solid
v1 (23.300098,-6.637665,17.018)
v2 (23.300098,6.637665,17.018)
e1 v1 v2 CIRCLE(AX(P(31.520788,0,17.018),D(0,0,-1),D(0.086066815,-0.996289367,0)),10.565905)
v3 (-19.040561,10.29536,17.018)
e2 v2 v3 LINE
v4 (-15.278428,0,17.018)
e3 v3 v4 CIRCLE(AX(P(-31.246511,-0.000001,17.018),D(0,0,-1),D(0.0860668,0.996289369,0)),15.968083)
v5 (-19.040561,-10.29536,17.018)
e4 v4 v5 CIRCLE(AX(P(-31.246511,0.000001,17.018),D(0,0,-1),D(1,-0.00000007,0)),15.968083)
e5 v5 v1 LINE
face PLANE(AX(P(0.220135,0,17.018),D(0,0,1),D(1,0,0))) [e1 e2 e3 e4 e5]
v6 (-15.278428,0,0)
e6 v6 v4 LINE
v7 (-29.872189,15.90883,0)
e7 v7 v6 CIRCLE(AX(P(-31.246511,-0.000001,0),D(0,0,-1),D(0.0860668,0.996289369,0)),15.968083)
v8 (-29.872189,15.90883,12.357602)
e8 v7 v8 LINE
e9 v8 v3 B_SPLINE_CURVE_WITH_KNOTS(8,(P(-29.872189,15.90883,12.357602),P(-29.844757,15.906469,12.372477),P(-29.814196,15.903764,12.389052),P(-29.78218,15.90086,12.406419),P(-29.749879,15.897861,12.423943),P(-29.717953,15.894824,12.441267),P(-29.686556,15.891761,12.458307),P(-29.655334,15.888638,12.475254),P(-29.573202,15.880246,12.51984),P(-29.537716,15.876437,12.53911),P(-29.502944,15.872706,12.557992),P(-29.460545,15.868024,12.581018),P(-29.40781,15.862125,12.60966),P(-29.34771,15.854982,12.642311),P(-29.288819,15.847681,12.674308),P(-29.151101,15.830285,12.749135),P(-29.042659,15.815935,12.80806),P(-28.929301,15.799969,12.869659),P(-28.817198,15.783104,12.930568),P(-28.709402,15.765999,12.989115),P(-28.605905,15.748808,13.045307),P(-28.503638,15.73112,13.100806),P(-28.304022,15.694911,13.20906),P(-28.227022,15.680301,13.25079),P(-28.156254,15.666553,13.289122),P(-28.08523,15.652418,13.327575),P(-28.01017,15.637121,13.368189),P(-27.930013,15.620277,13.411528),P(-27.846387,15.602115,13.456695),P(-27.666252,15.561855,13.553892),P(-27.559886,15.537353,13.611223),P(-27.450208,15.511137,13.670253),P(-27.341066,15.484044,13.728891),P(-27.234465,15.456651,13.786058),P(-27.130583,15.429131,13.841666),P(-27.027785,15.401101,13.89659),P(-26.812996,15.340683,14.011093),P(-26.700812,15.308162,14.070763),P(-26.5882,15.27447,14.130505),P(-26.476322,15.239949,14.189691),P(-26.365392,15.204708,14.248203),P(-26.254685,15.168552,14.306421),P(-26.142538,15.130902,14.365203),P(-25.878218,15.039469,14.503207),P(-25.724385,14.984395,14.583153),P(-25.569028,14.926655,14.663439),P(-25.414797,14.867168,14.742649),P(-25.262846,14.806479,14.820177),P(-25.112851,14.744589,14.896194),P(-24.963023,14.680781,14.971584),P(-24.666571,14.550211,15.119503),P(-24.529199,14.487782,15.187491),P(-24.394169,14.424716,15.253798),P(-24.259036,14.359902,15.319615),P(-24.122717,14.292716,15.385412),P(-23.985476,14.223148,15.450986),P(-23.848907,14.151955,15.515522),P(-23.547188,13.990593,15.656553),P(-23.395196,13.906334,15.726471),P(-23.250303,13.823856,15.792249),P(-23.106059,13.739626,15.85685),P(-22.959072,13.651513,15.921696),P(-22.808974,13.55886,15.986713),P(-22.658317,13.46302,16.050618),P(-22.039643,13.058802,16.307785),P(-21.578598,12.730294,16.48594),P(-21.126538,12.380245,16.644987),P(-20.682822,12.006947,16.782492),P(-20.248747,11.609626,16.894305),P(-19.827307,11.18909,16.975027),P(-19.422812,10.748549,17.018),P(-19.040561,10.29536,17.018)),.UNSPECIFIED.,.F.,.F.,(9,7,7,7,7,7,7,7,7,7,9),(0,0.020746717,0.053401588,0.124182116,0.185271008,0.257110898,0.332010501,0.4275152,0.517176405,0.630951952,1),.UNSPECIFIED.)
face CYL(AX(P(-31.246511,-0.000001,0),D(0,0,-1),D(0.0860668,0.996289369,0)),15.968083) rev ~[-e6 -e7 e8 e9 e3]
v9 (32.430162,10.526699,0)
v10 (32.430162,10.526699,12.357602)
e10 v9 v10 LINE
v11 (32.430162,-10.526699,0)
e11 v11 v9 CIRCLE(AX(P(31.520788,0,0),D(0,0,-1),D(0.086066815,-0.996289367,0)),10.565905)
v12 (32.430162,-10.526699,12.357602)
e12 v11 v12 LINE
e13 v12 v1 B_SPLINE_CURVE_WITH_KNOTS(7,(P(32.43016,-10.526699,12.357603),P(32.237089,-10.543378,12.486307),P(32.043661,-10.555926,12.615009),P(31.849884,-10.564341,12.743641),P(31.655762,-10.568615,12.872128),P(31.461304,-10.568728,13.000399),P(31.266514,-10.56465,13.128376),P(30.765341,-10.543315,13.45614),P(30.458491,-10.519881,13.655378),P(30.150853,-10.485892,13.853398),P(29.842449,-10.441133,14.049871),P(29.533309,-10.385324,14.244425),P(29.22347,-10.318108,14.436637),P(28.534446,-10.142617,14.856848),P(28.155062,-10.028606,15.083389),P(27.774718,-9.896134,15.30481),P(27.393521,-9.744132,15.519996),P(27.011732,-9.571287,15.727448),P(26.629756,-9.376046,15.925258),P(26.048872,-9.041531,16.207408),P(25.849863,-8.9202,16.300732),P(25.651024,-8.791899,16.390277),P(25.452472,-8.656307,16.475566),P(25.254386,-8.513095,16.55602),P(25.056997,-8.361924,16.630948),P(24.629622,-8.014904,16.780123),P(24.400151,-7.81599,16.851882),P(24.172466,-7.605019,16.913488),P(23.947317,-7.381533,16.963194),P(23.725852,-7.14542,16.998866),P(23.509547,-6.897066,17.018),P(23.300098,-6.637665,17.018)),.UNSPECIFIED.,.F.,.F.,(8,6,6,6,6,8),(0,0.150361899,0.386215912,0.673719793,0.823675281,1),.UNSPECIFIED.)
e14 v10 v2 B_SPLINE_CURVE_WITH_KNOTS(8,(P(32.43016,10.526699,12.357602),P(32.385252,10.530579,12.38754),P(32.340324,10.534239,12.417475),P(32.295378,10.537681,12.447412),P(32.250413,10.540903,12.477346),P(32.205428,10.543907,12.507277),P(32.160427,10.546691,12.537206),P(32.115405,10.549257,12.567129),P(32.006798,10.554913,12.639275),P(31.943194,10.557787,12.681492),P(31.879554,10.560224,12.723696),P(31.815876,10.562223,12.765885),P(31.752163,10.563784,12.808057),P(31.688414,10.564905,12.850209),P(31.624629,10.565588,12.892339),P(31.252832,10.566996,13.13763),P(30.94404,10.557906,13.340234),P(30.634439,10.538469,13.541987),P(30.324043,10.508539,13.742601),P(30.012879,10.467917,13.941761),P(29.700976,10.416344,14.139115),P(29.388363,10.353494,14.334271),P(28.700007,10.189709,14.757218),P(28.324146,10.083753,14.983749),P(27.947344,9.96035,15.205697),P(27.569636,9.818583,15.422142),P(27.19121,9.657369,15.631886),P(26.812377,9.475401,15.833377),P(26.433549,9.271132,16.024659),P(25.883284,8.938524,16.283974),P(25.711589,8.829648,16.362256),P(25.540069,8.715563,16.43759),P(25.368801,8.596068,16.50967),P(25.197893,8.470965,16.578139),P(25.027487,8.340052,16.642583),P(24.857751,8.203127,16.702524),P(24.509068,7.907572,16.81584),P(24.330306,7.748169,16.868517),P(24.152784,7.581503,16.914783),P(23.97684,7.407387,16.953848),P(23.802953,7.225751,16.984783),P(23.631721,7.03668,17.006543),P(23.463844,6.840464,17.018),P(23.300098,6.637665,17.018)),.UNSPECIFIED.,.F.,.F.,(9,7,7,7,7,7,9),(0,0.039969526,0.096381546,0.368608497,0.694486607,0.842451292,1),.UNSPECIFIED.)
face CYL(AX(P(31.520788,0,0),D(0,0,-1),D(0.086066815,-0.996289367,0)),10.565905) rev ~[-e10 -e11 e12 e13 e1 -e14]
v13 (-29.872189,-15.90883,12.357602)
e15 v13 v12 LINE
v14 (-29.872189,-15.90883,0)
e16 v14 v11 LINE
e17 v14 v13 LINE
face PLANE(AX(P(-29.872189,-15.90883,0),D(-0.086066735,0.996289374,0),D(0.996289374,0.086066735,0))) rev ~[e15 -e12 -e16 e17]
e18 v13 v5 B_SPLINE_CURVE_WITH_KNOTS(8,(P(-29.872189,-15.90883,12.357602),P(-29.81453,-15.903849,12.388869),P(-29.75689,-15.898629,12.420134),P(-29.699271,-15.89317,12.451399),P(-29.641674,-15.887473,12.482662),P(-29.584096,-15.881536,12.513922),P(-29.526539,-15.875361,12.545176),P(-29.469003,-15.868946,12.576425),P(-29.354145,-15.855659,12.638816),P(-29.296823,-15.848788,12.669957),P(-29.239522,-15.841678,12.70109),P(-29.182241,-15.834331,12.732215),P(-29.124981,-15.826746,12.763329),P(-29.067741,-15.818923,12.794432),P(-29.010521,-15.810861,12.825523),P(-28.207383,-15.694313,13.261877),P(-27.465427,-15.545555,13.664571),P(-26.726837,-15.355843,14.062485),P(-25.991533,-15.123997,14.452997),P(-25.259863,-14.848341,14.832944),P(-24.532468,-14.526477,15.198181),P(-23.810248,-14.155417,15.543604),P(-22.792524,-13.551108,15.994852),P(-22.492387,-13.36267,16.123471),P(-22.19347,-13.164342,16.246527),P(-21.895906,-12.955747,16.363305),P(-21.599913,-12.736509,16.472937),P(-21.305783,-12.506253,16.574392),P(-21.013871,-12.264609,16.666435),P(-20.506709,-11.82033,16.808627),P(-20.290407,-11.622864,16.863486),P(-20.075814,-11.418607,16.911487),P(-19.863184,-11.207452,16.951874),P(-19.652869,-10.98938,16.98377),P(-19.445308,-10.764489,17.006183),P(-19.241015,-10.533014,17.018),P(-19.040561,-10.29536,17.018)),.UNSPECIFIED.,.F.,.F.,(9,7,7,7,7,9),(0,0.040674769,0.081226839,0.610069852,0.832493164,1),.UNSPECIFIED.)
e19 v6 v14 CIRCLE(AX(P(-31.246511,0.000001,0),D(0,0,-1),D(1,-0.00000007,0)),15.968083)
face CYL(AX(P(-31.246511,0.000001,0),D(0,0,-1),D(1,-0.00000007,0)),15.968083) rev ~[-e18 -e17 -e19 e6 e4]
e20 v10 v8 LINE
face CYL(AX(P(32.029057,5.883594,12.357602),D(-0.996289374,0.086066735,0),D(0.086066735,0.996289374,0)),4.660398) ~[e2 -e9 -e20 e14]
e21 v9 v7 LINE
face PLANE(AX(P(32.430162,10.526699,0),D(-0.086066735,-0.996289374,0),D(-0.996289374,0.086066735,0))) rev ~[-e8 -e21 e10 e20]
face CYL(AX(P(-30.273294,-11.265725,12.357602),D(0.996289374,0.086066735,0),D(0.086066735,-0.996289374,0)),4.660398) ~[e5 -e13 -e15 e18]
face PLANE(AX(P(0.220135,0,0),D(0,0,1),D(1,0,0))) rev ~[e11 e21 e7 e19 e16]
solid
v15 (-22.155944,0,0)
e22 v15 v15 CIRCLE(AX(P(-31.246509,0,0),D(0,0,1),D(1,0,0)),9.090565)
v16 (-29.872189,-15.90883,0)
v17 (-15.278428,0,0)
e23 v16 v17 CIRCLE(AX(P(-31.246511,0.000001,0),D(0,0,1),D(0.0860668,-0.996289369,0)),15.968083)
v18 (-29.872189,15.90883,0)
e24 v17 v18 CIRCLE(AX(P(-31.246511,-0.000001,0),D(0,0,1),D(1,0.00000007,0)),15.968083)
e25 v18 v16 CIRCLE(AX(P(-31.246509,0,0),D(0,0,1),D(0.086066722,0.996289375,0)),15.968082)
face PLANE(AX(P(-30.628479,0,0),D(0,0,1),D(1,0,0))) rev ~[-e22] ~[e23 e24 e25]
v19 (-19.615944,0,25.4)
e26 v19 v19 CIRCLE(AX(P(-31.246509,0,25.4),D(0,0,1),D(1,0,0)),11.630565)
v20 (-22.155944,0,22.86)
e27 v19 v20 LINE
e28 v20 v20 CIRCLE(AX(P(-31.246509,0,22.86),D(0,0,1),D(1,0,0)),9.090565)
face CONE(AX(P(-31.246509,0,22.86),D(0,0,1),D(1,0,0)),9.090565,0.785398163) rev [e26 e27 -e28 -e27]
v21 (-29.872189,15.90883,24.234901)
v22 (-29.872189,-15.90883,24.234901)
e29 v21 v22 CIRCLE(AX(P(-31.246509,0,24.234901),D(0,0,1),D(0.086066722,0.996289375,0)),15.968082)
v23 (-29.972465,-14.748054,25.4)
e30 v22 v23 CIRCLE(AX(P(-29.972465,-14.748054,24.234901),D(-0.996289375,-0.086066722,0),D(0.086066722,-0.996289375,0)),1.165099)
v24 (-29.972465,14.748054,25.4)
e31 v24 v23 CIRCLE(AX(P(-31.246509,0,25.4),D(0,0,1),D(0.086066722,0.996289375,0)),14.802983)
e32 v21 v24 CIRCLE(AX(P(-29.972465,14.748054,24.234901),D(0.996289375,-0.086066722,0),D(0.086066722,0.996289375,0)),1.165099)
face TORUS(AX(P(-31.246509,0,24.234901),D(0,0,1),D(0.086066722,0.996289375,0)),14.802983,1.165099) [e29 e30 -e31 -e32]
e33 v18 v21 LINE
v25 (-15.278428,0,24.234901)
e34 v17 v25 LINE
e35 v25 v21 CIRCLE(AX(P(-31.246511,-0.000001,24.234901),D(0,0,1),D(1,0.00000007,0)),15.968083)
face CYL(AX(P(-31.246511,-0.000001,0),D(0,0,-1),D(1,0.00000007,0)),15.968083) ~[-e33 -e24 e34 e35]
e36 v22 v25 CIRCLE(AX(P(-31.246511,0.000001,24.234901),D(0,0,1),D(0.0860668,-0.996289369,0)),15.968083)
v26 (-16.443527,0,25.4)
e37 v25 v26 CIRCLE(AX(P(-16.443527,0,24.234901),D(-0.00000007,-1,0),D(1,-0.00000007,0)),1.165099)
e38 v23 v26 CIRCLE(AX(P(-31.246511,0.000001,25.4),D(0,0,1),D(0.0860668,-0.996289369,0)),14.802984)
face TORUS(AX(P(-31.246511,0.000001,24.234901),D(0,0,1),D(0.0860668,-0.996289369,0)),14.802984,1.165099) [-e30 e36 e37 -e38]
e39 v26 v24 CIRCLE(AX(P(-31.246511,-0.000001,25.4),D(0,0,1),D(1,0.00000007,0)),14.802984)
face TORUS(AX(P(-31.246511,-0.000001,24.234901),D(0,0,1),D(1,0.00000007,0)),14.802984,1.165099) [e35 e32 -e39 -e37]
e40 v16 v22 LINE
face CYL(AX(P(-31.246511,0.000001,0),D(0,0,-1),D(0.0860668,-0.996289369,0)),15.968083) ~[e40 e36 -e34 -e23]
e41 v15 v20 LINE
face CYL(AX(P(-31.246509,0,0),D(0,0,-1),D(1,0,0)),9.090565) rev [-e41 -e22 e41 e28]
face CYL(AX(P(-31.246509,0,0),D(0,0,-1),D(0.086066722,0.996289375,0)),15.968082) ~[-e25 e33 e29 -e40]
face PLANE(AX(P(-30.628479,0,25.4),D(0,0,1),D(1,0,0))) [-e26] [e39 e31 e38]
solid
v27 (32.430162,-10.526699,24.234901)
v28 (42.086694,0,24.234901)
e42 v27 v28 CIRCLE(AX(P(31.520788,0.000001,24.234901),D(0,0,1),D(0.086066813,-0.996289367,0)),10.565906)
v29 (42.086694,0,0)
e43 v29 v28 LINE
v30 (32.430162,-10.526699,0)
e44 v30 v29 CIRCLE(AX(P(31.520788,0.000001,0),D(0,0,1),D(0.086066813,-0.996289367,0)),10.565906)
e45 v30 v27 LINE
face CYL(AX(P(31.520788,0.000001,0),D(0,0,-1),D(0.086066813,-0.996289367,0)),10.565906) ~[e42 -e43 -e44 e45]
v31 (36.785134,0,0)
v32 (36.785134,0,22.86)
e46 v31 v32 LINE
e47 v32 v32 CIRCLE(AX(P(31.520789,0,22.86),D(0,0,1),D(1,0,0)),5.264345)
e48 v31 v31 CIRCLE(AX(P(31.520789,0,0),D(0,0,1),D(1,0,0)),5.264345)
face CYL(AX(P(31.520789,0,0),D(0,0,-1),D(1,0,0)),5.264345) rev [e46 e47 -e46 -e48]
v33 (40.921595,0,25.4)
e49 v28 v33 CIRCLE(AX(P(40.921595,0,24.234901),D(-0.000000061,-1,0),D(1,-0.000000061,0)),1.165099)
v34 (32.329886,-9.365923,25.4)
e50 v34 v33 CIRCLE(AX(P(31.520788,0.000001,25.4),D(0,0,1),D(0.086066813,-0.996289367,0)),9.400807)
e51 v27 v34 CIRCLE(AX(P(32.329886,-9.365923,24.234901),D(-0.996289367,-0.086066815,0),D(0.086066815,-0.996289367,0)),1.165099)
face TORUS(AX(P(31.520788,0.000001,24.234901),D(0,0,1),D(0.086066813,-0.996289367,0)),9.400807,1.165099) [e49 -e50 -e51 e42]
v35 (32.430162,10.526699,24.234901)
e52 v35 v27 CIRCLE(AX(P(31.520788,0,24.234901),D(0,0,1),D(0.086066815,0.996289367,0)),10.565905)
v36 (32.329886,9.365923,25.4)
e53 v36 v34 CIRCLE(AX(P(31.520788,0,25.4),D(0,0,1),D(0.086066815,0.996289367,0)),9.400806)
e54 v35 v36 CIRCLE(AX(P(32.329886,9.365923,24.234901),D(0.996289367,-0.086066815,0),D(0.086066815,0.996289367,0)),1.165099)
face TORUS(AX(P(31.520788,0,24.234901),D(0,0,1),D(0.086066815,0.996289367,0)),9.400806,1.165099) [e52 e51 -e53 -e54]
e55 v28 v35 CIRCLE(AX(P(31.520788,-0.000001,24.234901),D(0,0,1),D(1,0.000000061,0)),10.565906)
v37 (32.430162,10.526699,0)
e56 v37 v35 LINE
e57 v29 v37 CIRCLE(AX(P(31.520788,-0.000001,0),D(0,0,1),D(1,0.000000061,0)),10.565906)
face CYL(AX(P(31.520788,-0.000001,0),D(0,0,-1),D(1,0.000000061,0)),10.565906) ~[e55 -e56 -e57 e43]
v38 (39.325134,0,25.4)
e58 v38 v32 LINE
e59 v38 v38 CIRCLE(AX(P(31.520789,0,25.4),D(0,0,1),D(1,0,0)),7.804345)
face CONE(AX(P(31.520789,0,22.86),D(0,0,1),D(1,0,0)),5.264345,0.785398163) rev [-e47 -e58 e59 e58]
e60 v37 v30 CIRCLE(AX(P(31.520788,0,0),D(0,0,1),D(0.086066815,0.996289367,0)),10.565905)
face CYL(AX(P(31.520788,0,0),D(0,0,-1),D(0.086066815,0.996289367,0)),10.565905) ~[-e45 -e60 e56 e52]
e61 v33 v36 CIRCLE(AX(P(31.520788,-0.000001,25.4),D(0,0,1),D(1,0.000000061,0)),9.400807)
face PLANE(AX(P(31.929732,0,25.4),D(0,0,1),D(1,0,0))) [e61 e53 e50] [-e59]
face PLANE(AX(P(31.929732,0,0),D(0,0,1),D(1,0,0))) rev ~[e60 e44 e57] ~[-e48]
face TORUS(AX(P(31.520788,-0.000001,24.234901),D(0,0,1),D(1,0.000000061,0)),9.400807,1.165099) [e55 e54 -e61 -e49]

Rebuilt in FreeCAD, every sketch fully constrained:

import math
import FreeCAD as App
import Part
import Sketcher

V = App.Vector
Q = App.Units.Quantity


def edges_at(feature, points):
    """Names of the edges that pass closest to the given points."""
    edges = feature.Shape.Edges
    near = lambda p: min(range(len(edges)), key=lambda i: edges[i].distToShape(Part.Vertex(*p))[0])
    return sorted({f"Edge{near(p) + 1}" for p in points})

doc = App.newDocument("Part")
body = doc.addObject("PartDesign::Body", "Body")
body.AllowCompound = True

# Sketch on XY plane
sketch1 = body.newObject("Sketcher::SketchObject", "Sketch")
sketch1.AttachmentSupport = (doc.getObject("XY_Plane"), [""])
sketch1.MapMode = "FlatFace"
sketch1.addGeometry(Part.ArcOfCircle(Part.Circle(V(-31, 0, 0), V(0, 0, 1), 16), math.radians(-85), math.radians(0)), False)
sketch1.addGeometry(Part.ArcOfCircle(Part.Circle(V(-31, 0, 0), V(0, 0, 1), 16), math.radians(0), math.radians(85)), False)
sketch1.addGeometry(Part.ArcOfCircle(Part.Circle(V(-31, 0, 0), V(0, 0, 1), 16), math.radians(85), math.radians(275)), False)
sketch1.addGeometry(Part.Circle(V(-31, 0, 0), V(0, 0, 1), 9), False)
sketch1.addGeometry(Part.ArcOfCircle(Part.Circle(V(32, 0, 0), V(0, 0, 1), 11), math.radians(0), math.radians(85)), False)
sketch1.addGeometry(Part.ArcOfCircle(Part.Circle(V(32, 0, 0), V(0, 0, 1), 11), math.radians(85), math.radians(275)), False)
sketch1.addGeometry(Part.ArcOfCircle(Part.Circle(V(32, 0, 0), V(0, 0, 1), 11), math.radians(-85), math.radians(0)), False)
sketch1.addGeometry(Part.Circle(V(32, 0, 0), V(0, 0, 1), 5), False)
sketch1.addConstraint(Sketcher.Constraint("Tangent", 0, 2, 1, 1))
sketch1.addConstraint(Sketcher.Constraint("Tangent", 1, 2, 2, 1))
sketch1.addConstraint(Sketcher.Constraint("Tangent", 2, 2, 0, 1))
sketch1.addConstraint(Sketcher.Constraint("Tangent", 4, 2, 5, 1))
sketch1.addConstraint(Sketcher.Constraint("Tangent", 5, 2, 6, 1))
sketch1.addConstraint(Sketcher.Constraint("Tangent", 6, 2, 4, 1))
sketch1.addConstraint(Sketcher.Constraint("Coincident", 3, 3, 0, 3))
sketch1.addConstraint(Sketcher.Constraint("Coincident", 7, 3, 4, 3))
sketch1.addConstraint(Sketcher.Constraint("Symmetric", 1, 2, 2, 2, -1))
sketch1.addConstraint(Sketcher.Constraint("Symmetric", 4, 2, 5, 2, -1))
sketch1.addConstraint(Sketcher.Constraint("PointOnObject", 0, 2, -1))
sketch1.addConstraint(Sketcher.Constraint("PointOnObject", 6, 2, -1))
sketch1.addConstraint(Sketcher.Constraint("Diameter", 3, Q("18.18113 mm")))
sketch1.addConstraint(Sketcher.Constraint("Diameter", 7, Q("10.52869 mm")))
sketch1.addConstraint(Sketcher.Constraint("Radius", 2, Q("15.968082 mm")))
sketch1.addConstraint(Sketcher.Constraint("Radius", 4, Q("10.565906 mm")))
sketch1.addConstraint(Sketcher.Constraint("DistanceY", -1, 1, 4, 2, Q("10.526699 mm")))
sketch1.addConstraint(Sketcher.Constraint("DistanceX", 1, 3, 4, 3, Q("62.767299 mm")))
sketch1.addConstraint(Sketcher.Constraint("DistanceX", 0, 3, -1, 1, Q("31.246511 mm")))
sketch1.addConstraint(Sketcher.Constraint("DistanceX", 1, 2, -1, 1, Q("29.872189 mm")))
pad1 = body.newObject("PartDesign::Pad", "Pad")
pad1.Profile = sketch1
pad1.Length = Q("1 in")
doc.recompute()

fillet = body.newObject("PartDesign::Fillet", "Fillet")
fillet.Base = (pad1, edges_at(pad1, [(-47.215, 0, 25.4), (20.955, 0, 25.4)]))
fillet.Radius = 1.165099
doc.recompute()

chamfer = body.newObject("PartDesign::Chamfer", "Chamfer")
chamfer.Base = (fillet, edges_at(fillet, [(-40.337, 0, 25.4), (26.256, 0, 25.4)]))
chamfer.Size = Q("0.1 in")
body2 = doc.addObject("PartDesign::Body", "Body001")

# Sketch on XY plane
sketch2 = body2.newObject("Sketcher::SketchObject", "Sketch001")
sketch2.AttachmentSupport = (doc.getObject("XY_Plane001"), [""])
sketch2.MapMode = "FlatFace"
sketch2.addGeometry(Part.ArcOfCircle(Part.Circle(V(-31, 0, 0), V(0, 0, 1), 16), math.radians(0), math.radians(85)), False)
sketch2.addGeometry(Part.ArcOfCircle(Part.Circle(V(-31, 0, 0), V(0, 0, 1), 16), math.radians(-85), math.radians(0)), False)
sketch2.addGeometry(Part.LineSegment(V(-30, -16, 0), V(32, -11, 0)), False)
sketch2.addGeometry(Part.ArcOfCircle(Part.Circle(V(32, 0, 0), V(0, 0, 1), 11), math.radians(85), math.radians(275)), False)
sketch2.addGeometry(Part.LineSegment(V(32, 11, 0), V(-30, 16, 0)), False)
sketch2.addConstraint(Sketcher.Constraint("Tangent", 0, 1, 1, 2))
sketch2.addConstraint(Sketcher.Constraint("Tangent", 1, 1, 2, 1))
sketch2.addConstraint(Sketcher.Constraint("Tangent", 2, 2, 3, 2))
sketch2.addConstraint(Sketcher.Constraint("Tangent", 3, 1, 4, 1))
sketch2.addConstraint(Sketcher.Constraint("Tangent", 4, 2, 0, 2))
sketch2.addConstraint(Sketcher.Constraint("Equal", 0, 1))
sketch2.addConstraint(Sketcher.Constraint("Symmetric", 2, 2, 3, 1, -1))
sketch2.addConstraint(Sketcher.Constraint("PointOnObject", 0, 1, -1))
sketch2.addConstraint(Sketcher.Constraint("Radius", 0, Q("15.968083 mm")))
sketch2.addConstraint(Sketcher.Constraint("Radius", 3, Q("10.565905 mm")))
sketch2.addConstraint(Sketcher.Constraint("DistanceX", 0, 3, 3, 3, Q("62.767299 mm")))
sketch2.addConstraint(Sketcher.Constraint("DistanceX", 0, 3, -1, 1, Q("31.246511 mm")))
pad2 = body2.newObject("PartDesign::Pad", "Pad001")
pad2.Profile = sketch2
pad2.Length = Q("0.67 in")
doc.recompute()

fillet2 = body2.newObject("PartDesign::Fillet", "Fillet001")
fillet2.Base = (pad2, edges_at(pad2, [(1.279, -13.218, 17.018), (1.279, 13.218, 17.018)]))
fillet2.Radius = 4.660398

doc.recompute()
